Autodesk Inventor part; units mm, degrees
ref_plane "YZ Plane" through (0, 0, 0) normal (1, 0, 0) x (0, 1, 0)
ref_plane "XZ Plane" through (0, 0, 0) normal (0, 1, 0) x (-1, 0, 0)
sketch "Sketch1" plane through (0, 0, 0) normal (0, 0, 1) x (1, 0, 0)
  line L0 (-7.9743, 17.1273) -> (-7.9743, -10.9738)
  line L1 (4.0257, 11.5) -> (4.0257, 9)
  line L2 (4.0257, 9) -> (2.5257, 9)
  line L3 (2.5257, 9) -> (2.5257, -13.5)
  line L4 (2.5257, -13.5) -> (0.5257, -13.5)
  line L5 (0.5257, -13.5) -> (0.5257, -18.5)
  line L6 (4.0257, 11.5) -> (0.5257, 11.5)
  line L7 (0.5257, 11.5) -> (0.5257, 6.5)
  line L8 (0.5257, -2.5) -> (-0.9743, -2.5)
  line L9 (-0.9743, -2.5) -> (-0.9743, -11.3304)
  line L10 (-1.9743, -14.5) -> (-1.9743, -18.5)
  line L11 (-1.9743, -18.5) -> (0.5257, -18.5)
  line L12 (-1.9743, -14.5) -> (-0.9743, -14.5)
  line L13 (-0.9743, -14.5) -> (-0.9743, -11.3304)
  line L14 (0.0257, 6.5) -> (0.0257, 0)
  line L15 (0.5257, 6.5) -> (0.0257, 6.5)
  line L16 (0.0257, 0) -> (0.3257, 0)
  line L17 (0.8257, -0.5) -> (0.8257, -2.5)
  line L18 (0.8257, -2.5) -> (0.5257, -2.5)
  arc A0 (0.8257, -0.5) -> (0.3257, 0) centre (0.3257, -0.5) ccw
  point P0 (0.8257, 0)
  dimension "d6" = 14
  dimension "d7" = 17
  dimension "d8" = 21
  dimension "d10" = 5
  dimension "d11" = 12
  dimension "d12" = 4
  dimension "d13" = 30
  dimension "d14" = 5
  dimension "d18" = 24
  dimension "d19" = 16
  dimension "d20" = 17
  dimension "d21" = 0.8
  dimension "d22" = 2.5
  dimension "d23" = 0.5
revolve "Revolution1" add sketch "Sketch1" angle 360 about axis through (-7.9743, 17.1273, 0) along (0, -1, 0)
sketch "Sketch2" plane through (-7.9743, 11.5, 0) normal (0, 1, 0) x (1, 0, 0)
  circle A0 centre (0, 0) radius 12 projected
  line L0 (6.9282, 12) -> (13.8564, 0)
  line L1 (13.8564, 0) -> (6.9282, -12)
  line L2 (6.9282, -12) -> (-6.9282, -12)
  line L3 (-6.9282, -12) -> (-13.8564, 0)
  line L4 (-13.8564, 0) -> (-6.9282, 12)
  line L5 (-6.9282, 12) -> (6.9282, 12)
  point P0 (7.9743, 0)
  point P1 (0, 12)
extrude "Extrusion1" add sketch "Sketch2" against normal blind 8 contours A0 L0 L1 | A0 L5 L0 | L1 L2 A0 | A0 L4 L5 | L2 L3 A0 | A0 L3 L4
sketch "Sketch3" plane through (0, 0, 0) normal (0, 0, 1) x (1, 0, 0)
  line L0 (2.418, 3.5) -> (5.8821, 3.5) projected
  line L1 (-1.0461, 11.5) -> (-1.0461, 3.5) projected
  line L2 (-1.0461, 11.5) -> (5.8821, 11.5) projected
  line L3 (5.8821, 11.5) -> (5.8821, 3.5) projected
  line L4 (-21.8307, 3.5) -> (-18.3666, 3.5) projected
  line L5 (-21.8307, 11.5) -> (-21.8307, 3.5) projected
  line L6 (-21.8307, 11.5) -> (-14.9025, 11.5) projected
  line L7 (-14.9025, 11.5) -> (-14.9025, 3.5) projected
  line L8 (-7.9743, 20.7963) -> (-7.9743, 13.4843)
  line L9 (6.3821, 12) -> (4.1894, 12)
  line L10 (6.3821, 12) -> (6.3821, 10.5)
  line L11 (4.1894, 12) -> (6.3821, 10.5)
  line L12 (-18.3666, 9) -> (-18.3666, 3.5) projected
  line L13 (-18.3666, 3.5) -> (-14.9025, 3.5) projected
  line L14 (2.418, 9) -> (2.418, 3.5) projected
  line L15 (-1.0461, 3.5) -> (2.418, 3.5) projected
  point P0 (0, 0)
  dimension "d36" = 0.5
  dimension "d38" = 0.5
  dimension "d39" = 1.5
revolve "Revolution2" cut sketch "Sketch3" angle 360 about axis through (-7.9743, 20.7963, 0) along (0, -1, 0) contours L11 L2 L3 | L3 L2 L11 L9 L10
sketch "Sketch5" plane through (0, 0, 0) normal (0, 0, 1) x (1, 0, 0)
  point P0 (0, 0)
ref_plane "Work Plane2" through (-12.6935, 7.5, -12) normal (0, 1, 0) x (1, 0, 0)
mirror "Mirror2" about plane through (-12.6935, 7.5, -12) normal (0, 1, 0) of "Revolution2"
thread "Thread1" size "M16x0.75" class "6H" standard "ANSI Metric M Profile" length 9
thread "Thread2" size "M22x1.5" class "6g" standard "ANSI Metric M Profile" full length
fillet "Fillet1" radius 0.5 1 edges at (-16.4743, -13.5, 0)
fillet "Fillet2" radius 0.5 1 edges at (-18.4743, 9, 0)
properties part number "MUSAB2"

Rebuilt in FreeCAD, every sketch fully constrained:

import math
import FreeCAD as App
import Part
import Sketcher
Q = App.Units.Quantity


def edges_at(feature, points):
    """Names of the edges that pass closest to the given points."""
    edges = feature.Shape.Edges
    near = lambda p: min(range(len(edges)), key=lambda i: edges[i].distToShape(Part.Vertex(*p))[0])
    return sorted({f"Edge{near(p) + 1}" for p in points})


def add_polygon(sketch, points):
    """Adds a closed chain of lines whose ends are joined by coincident constraints."""
    first, n = sketch.GeometryCount, len(points)
    for a, b in zip(points, points[1:] + points[:1]):
        sketch.addGeometry(Part.LineSegment(App.Vector(*a, 0), App.Vector(*b, 0)), False)
    for i in range(n):
        sketch.addConstraint(Sketcher.Constraint("Coincident", first + i, 2, first + (i + 1) % n, 1))

doc = App.newDocument("Part")
params = doc.addObject("Spreadsheet::Sheet", "Params")
for row, (alias, value) in enumerate([
    ("sketch1_radius", "0.5 mm"),
    ("sketch1_height", "5 mm"),
    ("sketch1_height2", "12 mm"),
    ("sketch1_height3", "4 mm"),
    ("sketch1_height4", "30 mm"),
    ("revolution_angle", "360 deg"),
    ("sketch2_radius", "12 mm"),
    ("pad1_length", "8 mm"),
    ("sketch3_height", "1.5 mm"),
    ("groove_angle", "360 deg"),
    ("fillet_radius", "0.5 mm"),
    ("fillet2_radius", "0.5 mm"),
], start=1):
    params.set(f"A{row}", alias)
    params.set(f"B{row}", "=" + value)
    params.setAlias(f"B{row}", alias)

body = doc.addObject("PartDesign::Body", "Body")

sketch1 = body.newObject("Sketcher::SketchObject", "Sketch")
sketch1.AttachmentSupport = (doc.getObject("XY_Plane"), [""])
sketch1.MapMode = "FlatFace"
sketch1.addGeometry([
    Part.LineSegment(App.Vector(4.03, 9, 0), App.Vector(4.03, 11.5, 0)),
    Part.LineSegment(App.Vector(4.03, 11.5, 0), App.Vector(0.53, 11.5, 0)),
    Part.LineSegment(App.Vector(0.53, 11.5, 0), App.Vector(0.53, 6.5, 0)),
    Part.LineSegment(App.Vector(0.53, 6.5, 0), App.Vector(0.03, 6.5, 0)),
    Part.LineSegment(App.Vector(0.03, 6.5, 0), App.Vector(0.03, 0, 0)),
    Part.LineSegment(App.Vector(0.03, 0, 0), App.Vector(0.33, 0, 0)),
    Part.ArcOfCircle(Part.Circle(App.Vector(0.33, -0.5, 0), App.Vector(0, 0, 1), 0.5), math.radians(0), math.radians(90)),
    Part.LineSegment(App.Vector(0.83, -0.5, 0), App.Vector(0.83, -2.5, 0)),
    Part.LineSegment(App.Vector(0.83, -2.5, 0), App.Vector(-0.97, -2.5, 0)),
    Part.LineSegment(App.Vector(-0.97, -2.5, 0), App.Vector(-0.97, -14.5, 0)),
    Part.LineSegment(App.Vector(-0.97, -14.5, 0), App.Vector(-1.97, -14.5, 0)),
    Part.LineSegment(App.Vector(-1.97, -14.5, 0), App.Vector(-1.97, -18.5, 0)),
    Part.LineSegment(App.Vector(-1.97, -18.5, 0), App.Vector(0.53, -18.5, 0)),
    Part.LineSegment(App.Vector(0.53, -18.5, 0), App.Vector(0.53, -13.5, 0)),
    Part.LineSegment(App.Vector(0.53, -13.5, 0), App.Vector(2.53, -13.5, 0)),
    Part.LineSegment(App.Vector(2.53, -13.5, 0), App.Vector(2.53, 9, 0)),
    Part.LineSegment(App.Vector(2.53, 9, 0), App.Vector(4.03, 9, 0)),
], False)
sketch1.addGeometry(Part.LineSegment(App.Vector(-7.97, 11.5, 0), App.Vector(-7.97, -18.5, 0)), True)
sketch1.addConstraint([
    Sketcher.Constraint("Coincident", 0, 2, 1, 1),
    Sketcher.Constraint("Coincident", 1, 2, 2, 1),
    Sketcher.Constraint("Coincident", 2, 2, 3, 1),
    Sketcher.Constraint("Coincident", 3, 2, 4, 1),
    Sketcher.Constraint("Coincident", 4, 2, 5, 1),
    Sketcher.Constraint("Tangent", 5, 2, 6, 2),
    Sketcher.Constraint("Tangent", 6, 1, 7, 1),
    Sketcher.Constraint("Coincident", 7, 2, 8, 1),
    Sketcher.Constraint("Coincident", 8, 2, 9, 1),
    Sketcher.Constraint("Coincident", 9, 2, 10, 1),
    Sketcher.Constraint("Coincident", 10, 2, 11, 1),
    Sketcher.Constraint("Coincident", 11, 2, 12, 1),
    Sketcher.Constraint("Coincident", 12, 2, 13, 1),
    Sketcher.Constraint("Coincident", 13, 2, 14, 1),
    Sketcher.Constraint("Coincident", 14, 2, 15, 1),
    Sketcher.Constraint("Coincident", 15, 2, 16, 1),
    Sketcher.Constraint("Coincident", 16, 2, 0, 1),
    Sketcher.Constraint("Vertical", 0),
    Sketcher.Constraint("Horizontal", 1),
    Sketcher.Constraint("Vertical", 2),
    Sketcher.Constraint("Horizontal", 3),
    Sketcher.Constraint("Vertical", 4),
    Sketcher.Constraint("Horizontal", 5),
    Sketcher.Constraint("Vertical", 7),
    Sketcher.Constraint("Horizontal", 8),
    Sketcher.Constraint("Vertical", 9),
    Sketcher.Constraint("Horizontal", 10),
    Sketcher.Constraint("Vertical", 11),
    Sketcher.Constraint("Horizontal", 12),
    Sketcher.Constraint("Vertical", 13),
    Sketcher.Constraint("Horizontal", 14),
    Sketcher.Constraint("Vertical", 15),
    Sketcher.Constraint("Horizontal", 16),
    Sketcher.Constraint("Vertical", 17),
    Sketcher.Constraint("PointOnObject", 4, 2, -1),
    Sketcher.Constraint("Horizontal", 1, 2, 17, 1),
    Sketcher.Constraint("Horizontal", 12, 2, 17, 2),
    Sketcher.Constraint("Vertical", 2, 2, 12, 2),
    Sketcher.Constraint("Equal", 12, 0),
    Sketcher.Constraint("Equal", 14, 7),
    Sketcher.Constraint("Equal", 2, 13),
    Sketcher.Constraint("Radius", 6, Q("0.5 mm")),
    Sketcher.Constraint("DistanceY", 2, 2, 2, 1, Q("5 mm")),
    Sketcher.Constraint("DistanceY", 9, 2, 9, 1, Q("12 mm")),
    Sketcher.Constraint("DistanceY", 11, 2, 11, 1, Q("4 mm")),
    Sketcher.Constraint("DistanceY", 17, 2, 17, 1, Q("30 mm")),
    Sketcher.Constraint("DistanceX", 3, 2, 3, 1, Q("0.5 mm")),
    Sketcher.Constraint("DistanceX", 12, 1, 12, 2, Q("2.5 mm")),
    Sketcher.Constraint("DistanceY", 6, 3, 0, 2, Q("12 mm")),
    Sketcher.Constraint("DistanceX", 3, 2, 0, 2, Q("4 mm")),
    Sketcher.Constraint("DistanceX", 17, 1, 0, 2, Q("12 mm")),
    Sketcher.Constraint("DistanceX", 4, 2, 6, 1, Q("0.8 mm")),
    Sketcher.Constraint("DistanceX", 10, 2, 10, 1, Q("1 mm")),
    Sketcher.Constraint("DistanceX", -1, 1, 6, 3, Q("0.3257 mm")),
])
sketch1.setExpression("Constraints[41]", "Params.sketch1_radius")
sketch1.setExpression("Constraints[42]", "Params.sketch1_height")
sketch1.setExpression("Constraints[43]", "Params.sketch1_height2")
sketch1.setExpression("Constraints[44]", "Params.sketch1_height3")
sketch1.setExpression("Constraints[45]", "Params.sketch1_height4")
revolution = body.newObject("PartDesign::Revolution", "Revolution")
revolution.Profile = sketch1
revolution.ReferenceAxis = (sketch1, ["Axis0"])
revolution.setExpression("Angle", "Params.revolution_angle")

sketch2 = body.newObject("Sketcher::SketchObject", "Sketch001")
sketch2.AttachmentSupport = (doc.getObject("XZ_Plane"), [""])
sketch2.MapMode = "FlatFace"
sketch2.AttachmentOffset = App.Placement(App.Vector(0, 0, -11.5), App.Rotation())
sketch2.addGeometry([
    Part.ArcOfCircle(Part.Circle(App.Vector(-8, 0, 0), App.Vector(0, 0, 1), 12), math.radians(-30), math.radians(30)),
    Part.LineSegment(App.Vector(2, 6, 0), App.Vector(6, 0, 0)),
    Part.LineSegment(App.Vector(6, 0, 0), App.Vector(2, -6, 0)),
    Part.ArcOfCircle(Part.Circle(App.Vector(-8, 0, 0), App.Vector(0, 0, 1), 12), math.radians(-90), math.radians(-30)),
    Part.LineSegment(App.Vector(2, -6, 0), App.Vector(-1, -12, 0)),
    Part.LineSegment(App.Vector(-1, -12, 0), App.Vector(-8, -12, 0)),
    Part.LineSegment(App.Vector(-1, 12, 0), App.Vector(2, 6, 0)),
    Part.ArcOfCircle(Part.Circle(App.Vector(-8, 0, 0), App.Vector(0, 0, 1), 12), math.radians(30), math.radians(90)),
    Part.LineSegment(App.Vector(-8, 12, 0), App.Vector(-1, 12, 0)),
    Part.ArcOfCircle(Part.Circle(App.Vector(-8, 0, 0), App.Vector(0, 0, 1), 12), math.radians(-150), math.radians(-90)),
    Part.LineSegment(App.Vector(-8, -12, 0), App.Vector(-15, -12, 0)),
    Part.LineSegment(App.Vector(-15, -12, 0), App.Vector(-18, -6, 0)),
    Part.LineSegment(App.Vector(-15, 12, 0), App.Vector(-8, 12, 0)),
    Part.ArcOfCircle(Part.Circle(App.Vector(-8, 0, 0), App.Vector(0, 0, 1), 12), math.radians(90), math.radians(150)),
    Part.LineSegment(App.Vector(-18, 6, 0), App.Vector(-15, 12, 0)),
    Part.ArcOfCircle(Part.Circle(App.Vector(-8, 0, 0), App.Vector(0, 0, 1), 12), math.radians(150), math.radians(210)),
    Part.LineSegment(App.Vector(-18, -6, 0), App.Vector(-22, 0, 0)),
    Part.LineSegment(App.Vector(-22, 0, 0), App.Vector(-18, 6, 0)),
], False)
sketch2.addConstraint([
    Sketcher.Constraint("Tangent", 0, 2, 1, 1),
    Sketcher.Constraint("Coincident", 1, 2, 2, 1),
    Sketcher.Constraint("Tangent", 2, 2, 0, 1),
    Sketcher.Constraint("Tangent", 3, 2, 4, 1),
    Sketcher.Constraint("Coincident", 4, 2, 5, 1),
    Sketcher.Constraint("Tangent", 5, 2, 3, 1),
    Sketcher.Constraint("Tangent", 6, 2, 7, 1),
    Sketcher.Constraint("Tangent", 7, 2, 8, 1),
    Sketcher.Constraint("Coincident", 8, 2, 6, 1),
    Sketcher.Constraint("Tangent", 9, 2, 10, 1),
    Sketcher.Constraint("Coincident", 10, 2, 11, 1),
    Sketcher.Constraint("Tangent", 11, 2, 9, 1),
    Sketcher.Constraint("Tangent", 12, 2, 13, 1),
    Sketcher.Constraint("Tangent", 13, 2, 14, 1),
    Sketcher.Constraint("Coincident", 14, 2, 12, 1),
    Sketcher.Constraint("Tangent", 15, 2, 16, 1),
    Sketcher.Constraint("Coincident", 16, 2, 17, 1),
    Sketcher.Constraint("Tangent", 17, 2, 15, 1),
    Sketcher.Constraint("Horizontal", 5),
    Sketcher.Constraint("Horizontal", 8),
    Sketcher.Constraint("Horizontal", 10),
    Sketcher.Constraint("Horizontal", 12),
    Sketcher.Constraint("Coincident", 3, 3, 0, 3),
    Sketcher.Constraint("Coincident", 7, 3, 0, 3),
    Sketcher.Constraint("Coincident", 9, 3, 0, 3),
    Sketcher.Constraint("Coincident", 13, 3, 0, 3),
    Sketcher.Constraint("Coincident", 15, 3, 0, 3),
    Sketcher.Constraint("Coincident", 3, 2, 2, 2),
    Sketcher.Constraint("Coincident", 6, 2, 0, 2),
    Sketcher.Constraint("Coincident", 15, 2, 11, 2),
    Sketcher.Constraint("Coincident", 17, 2, 13, 2),
    Sketcher.Constraint("Equal", 7, 9),
    Sketcher.Constraint("Symmetric", 0, 2, 2, 2, -1),
    Sketcher.Constraint("PointOnObject", 16, 2, -1),
    Sketcher.Constraint("Parallel", 6, 11),
    Sketcher.Constraint("Equal", 2, 4),
    Sketcher.Constraint("Radius", 0, Q("12 mm")),
    Sketcher.Constraint("DistanceX", -1, 1, 0, 2, Q("2.418 mm")),
])
sketch2.setExpression("Constraints[36]", "Params.sketch2_radius")
pad1 = body.newObject("PartDesign::Pad", "Pad")
pad1.Profile = sketch2
pad1.setExpression("Length", "Params.pad1_length")

sketch3 = body.newObject("Sketcher::SketchObject", "Sketch002")
sketch3.AttachmentSupport = (doc.getObject("XY_Plane"), [""])
sketch3.MapMode = "FlatFace"
add_polygon(sketch3, [(6.4, 10.5), (6.4, 12), (4.2, 12)])
sketch3.addGeometry(Part.LineSegment(App.Vector(-8, 12, 0), App.Vector(-8, 10.5, 0)), True)
sketch3.addConstraint([
    Sketcher.Constraint("Vertical", 0),
    Sketcher.Constraint("Horizontal", 1),
    Sketcher.Constraint("Vertical", 3),
    Sketcher.Constraint("Horizontal", 1, 2, 3, 1),
    Sketcher.Constraint("Horizontal", 2, 2, 3, 2),
    Sketcher.Constraint("DistanceY", 0, 1, 0, 2, Q("1.5 mm")),
    Sketcher.Constraint("DistanceY", -1, 1, 0, 2, Q("12 mm")),
    Sketcher.Constraint("DistanceX", 1, 2, 1, 1, Q("2.1927 mm")),
    Sketcher.Constraint("DistanceX", -1, 1, 0, 2, Q("6.382 mm")),
    Sketcher.Constraint("DistanceX", 3, 1, -1, 1, Q("7.9743 mm")),
])
sketch3.setExpression("Constraints[8]", "Params.sketch3_height")
groove = body.newObject("PartDesign::Groove", "Groove")
groove.Profile = sketch3
groove.ReferenceAxis = (sketch3, ["Axis0"])
groove.setExpression("Angle", "Params.groove_angle")
doc.recompute()

datumplane = body.newObject("PartDesign::Plane", "DatumPlane")
datumplane.AttachmentSupport = (doc.getObject("XZ_Plane"), [""])
datumplane.MapMode = "FlatFace"
datumplane.AttachmentOffset = App.Placement(App.Vector(0, 0, -7.5), App.Rotation())
mirrored = body.newObject("PartDesign::Mirrored", "Mirrored")
mirrored.Originals = [groove]
mirrored.MirrorPlane = (datumplane, [""])
body.Tip = mirrored
doc.recompute()

fillet = body.newObject("PartDesign::Fillet", "Fillet")
fillet.Base = (mirrored, edges_at(mirrored, [(-16.474, -13.5, 0)]))
fillet.setExpression("Radius", "Params.fillet_radius")
doc.recompute()

fillet2 = body.newObject("PartDesign::Fillet", "Fillet001")
fillet2.Base = (fillet, edges_at(fillet, [(-18.474, 9, 0)]))
fillet2.setExpression("Radius", "Params.fillet2_radius")

doc.recompute()
